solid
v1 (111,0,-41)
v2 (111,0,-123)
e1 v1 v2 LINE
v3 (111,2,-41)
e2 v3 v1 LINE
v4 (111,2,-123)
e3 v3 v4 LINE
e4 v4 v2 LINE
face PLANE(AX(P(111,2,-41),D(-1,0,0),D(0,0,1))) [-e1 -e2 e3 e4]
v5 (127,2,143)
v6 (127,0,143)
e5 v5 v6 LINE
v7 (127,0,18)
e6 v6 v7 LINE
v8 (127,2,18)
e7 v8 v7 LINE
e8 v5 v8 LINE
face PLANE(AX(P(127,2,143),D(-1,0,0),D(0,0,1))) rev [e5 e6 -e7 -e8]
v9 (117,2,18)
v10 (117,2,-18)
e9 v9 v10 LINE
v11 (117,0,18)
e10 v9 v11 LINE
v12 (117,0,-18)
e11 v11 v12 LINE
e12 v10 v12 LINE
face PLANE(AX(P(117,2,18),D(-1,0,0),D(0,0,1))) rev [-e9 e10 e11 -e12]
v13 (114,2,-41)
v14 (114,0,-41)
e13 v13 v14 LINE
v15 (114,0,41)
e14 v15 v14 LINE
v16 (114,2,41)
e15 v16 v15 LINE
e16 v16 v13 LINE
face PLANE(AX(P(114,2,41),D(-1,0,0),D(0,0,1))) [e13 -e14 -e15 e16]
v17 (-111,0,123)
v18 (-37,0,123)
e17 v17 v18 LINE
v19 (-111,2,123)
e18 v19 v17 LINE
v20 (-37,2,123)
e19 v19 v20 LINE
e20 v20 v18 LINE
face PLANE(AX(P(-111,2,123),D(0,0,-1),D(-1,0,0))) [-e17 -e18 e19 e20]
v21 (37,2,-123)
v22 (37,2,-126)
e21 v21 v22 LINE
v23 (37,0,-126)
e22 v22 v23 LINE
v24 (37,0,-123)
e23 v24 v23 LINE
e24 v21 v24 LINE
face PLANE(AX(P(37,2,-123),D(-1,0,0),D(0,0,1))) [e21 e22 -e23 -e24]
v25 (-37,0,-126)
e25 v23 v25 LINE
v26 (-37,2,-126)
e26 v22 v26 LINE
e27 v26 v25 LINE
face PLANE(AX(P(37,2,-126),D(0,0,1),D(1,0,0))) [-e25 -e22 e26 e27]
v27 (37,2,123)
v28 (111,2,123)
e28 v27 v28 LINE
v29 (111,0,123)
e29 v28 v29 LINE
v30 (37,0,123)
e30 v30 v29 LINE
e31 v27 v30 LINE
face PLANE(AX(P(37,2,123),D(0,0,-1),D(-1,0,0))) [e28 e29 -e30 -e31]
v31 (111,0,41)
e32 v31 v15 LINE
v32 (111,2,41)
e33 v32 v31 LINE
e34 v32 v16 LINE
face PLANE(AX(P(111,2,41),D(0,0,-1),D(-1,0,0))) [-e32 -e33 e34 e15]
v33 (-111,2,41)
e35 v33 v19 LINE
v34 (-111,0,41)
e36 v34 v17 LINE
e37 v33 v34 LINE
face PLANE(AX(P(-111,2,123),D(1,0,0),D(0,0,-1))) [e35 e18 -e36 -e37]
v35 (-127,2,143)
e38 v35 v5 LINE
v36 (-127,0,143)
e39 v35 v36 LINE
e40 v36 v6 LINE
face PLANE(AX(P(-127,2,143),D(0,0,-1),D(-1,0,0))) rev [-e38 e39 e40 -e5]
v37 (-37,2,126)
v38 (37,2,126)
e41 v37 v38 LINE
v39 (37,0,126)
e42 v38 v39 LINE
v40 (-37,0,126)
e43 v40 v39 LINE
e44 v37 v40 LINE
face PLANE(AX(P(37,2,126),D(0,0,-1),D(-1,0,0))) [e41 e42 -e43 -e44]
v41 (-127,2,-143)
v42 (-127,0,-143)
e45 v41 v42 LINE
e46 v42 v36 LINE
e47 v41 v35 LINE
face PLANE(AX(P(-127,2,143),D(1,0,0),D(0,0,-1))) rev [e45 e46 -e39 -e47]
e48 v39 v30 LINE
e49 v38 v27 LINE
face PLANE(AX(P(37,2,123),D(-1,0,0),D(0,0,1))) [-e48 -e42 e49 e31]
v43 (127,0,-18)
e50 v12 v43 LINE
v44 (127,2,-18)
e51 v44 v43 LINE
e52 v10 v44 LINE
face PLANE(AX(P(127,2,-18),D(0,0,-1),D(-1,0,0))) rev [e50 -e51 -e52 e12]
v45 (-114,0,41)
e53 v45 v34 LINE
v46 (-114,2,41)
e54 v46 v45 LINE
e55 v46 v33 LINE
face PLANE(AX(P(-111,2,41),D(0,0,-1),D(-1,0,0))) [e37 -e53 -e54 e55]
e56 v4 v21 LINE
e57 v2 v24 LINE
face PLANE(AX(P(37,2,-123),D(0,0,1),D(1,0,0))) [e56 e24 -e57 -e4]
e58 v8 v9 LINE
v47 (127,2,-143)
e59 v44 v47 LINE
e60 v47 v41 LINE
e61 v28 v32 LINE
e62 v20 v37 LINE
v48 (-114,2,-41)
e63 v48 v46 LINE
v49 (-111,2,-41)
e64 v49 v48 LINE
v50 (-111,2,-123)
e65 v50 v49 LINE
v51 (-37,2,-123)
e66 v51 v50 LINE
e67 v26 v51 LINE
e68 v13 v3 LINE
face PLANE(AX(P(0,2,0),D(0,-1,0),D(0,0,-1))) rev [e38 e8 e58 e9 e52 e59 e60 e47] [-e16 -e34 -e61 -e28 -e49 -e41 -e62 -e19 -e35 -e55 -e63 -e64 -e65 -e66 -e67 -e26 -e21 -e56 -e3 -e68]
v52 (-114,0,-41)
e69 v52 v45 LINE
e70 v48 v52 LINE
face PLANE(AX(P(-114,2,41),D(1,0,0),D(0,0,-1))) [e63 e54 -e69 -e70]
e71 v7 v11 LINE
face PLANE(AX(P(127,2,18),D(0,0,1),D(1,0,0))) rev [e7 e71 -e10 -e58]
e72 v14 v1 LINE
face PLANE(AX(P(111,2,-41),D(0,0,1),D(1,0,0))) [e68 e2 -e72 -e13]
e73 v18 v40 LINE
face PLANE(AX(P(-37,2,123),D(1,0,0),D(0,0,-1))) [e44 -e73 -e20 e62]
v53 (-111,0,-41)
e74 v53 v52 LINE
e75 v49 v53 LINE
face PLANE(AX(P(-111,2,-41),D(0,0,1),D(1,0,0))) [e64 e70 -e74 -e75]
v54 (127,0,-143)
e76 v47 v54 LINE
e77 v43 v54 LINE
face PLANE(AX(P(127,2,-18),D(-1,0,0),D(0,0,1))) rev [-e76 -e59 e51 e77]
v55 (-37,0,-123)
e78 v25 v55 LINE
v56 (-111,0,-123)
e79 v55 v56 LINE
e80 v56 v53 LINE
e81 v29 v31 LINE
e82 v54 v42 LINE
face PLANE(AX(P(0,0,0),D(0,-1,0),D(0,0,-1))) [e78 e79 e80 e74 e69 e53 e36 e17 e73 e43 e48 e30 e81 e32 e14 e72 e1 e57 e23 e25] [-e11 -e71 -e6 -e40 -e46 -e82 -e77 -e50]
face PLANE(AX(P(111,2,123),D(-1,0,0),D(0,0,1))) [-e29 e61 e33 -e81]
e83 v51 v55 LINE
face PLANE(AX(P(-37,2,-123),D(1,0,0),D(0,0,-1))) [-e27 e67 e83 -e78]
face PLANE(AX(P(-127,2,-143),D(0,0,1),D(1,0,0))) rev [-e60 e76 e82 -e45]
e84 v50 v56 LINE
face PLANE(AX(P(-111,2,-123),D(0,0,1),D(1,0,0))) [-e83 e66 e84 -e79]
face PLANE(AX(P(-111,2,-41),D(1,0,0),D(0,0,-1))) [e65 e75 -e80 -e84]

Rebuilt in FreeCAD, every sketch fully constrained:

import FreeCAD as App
import Part
import Sketcher

V = App.Vector


def add_polygon(sketch, points):
    """Adds a closed chain of lines whose ends are joined by coincident constraints."""
    first, n = sketch.GeometryCount, len(points)
    for a, b in zip(points, points[1:] + points[:1]):
        sketch.addGeometry(Part.LineSegment(App.Vector(*a, 0), App.Vector(*b, 0)), False)
    for i in range(n):
        sketch.addConstraint(Sketcher.Constraint("Coincident", first + i, 2, first + (i + 1) % n, 1))

doc = App.newDocument("Part")
body = doc.addObject("PartDesign::Body", "Body")

sketch1 = doc.addObject("Sketcher::SketchObject", "Sketch")
body.addObject(sketch1)
sketch1.AttachmentSupport = (doc.XZ_Plane, [""])
sketch1.MapMode = "FlatFace"
add_polygon(sketch1, [(-127, 143), (127, 143), (127, 18), (117, 18), (117, -18), (127, -18), (127, -143), (-127, -143)])
add_polygon(sketch1, [(37, -126), (37, -123), (111, -123), (111, -41), (114, -41), (114, 41), (111, 41), (111, 123), (37, 123), (37, 126), (-37, 126), (-37, 123), (-111, 123), (-111, 41), (-114, 41), (-114, -41), (-111, -41), (-111, -123), (-37, -123), (-37, -126)])
sketch1.addConstraint([
    Sketcher.Constraint("Horizontal", 0),
    Sketcher.Constraint("Vertical", 1),
    Sketcher.Constraint("Horizontal", 2),
    Sketcher.Constraint("Vertical", 3),
    Sketcher.Constraint("Horizontal", 4),
    Sketcher.Constraint("Vertical", 5),
    Sketcher.Constraint("Horizontal", 6),
    Sketcher.Constraint("Vertical", 7),
    Sketcher.Constraint("Vertical", 8),
    Sketcher.Constraint("Horizontal", 9),
    Sketcher.Constraint("Vertical", 10),
    Sketcher.Constraint("Horizontal", 11),
    Sketcher.Constraint("Vertical", 12),
    Sketcher.Constraint("Horizontal", 13),
    Sketcher.Constraint("Vertical", 14),
    Sketcher.Constraint("Horizontal", 15),
    Sketcher.Constraint("Vertical", 16),
    Sketcher.Constraint("Horizontal", 17),
    Sketcher.Constraint("Vertical", 18),
    Sketcher.Constraint("Horizontal", 19),
    Sketcher.Constraint("Vertical", 20),
    Sketcher.Constraint("Horizontal", 21),
    Sketcher.Constraint("Vertical", 22),
    Sketcher.Constraint("Horizontal", 23),
    Sketcher.Constraint("Vertical", 24),
    Sketcher.Constraint("Horizontal", 25),
    Sketcher.Constraint("Vertical", 26),
    Sketcher.Constraint("Horizontal", 27),
    Sketcher.Constraint("Symmetric", 0, 2, 6, 2, -1, 1),
    Sketcher.Constraint("Symmetric", 8, 2, 18, 2, -1, 1),
    Sketcher.Constraint("Symmetric", 10, 2, 20, 2, -1, 1),
    Sketcher.Constraint("Symmetric", 12, 2, 22, 2, -1, 1),
    Sketcher.Constraint("Symmetric", 14, 2, 24, 2, -1, 1),
    Sketcher.Constraint("Symmetric", 16, 2, 26, 2, -1, 1),
    Sketcher.Constraint("Symmetric", 15, 2, 18, 2, -2),
    Sketcher.Constraint("Symmetric", 13, 2, 20, 2, -2),
    Sketcher.Constraint("Symmetric", 1, 2, 4, 2, -1),
    Sketcher.Constraint("Equal", 15, 17),
    Sketcher.Constraint("Equal", 23, 8),
    Sketcher.Constraint("Equal", 10, 12),
    Sketcher.Constraint("DistanceX", 0, 1, 0, 2, 254.0),
    Sketcher.Constraint("DistanceX", 2, 2, 2, 1, 10.0),
    Sketcher.Constraint("DistanceX", 9, 1, 9, 2, 74.0),
    Sketcher.Constraint("DistanceX", 11, 1, 11, 2, 3.0),
    Sketcher.Constraint("DistanceY", 1, 2, 1, 1, 125.0),
    Sketcher.Constraint("DistanceY", 3, 2, 3, 1, 36.0),
    Sketcher.Constraint("DistanceY", 10, 1, 10, 2, 82.0),
])
pad1 = doc.addObject("PartDesign::Pad", "Pad")
body.addObject(pad1)
pad1.Profile = sketch1
pad1.Length = 2
pad1.Reversed = True

doc.recompute()
